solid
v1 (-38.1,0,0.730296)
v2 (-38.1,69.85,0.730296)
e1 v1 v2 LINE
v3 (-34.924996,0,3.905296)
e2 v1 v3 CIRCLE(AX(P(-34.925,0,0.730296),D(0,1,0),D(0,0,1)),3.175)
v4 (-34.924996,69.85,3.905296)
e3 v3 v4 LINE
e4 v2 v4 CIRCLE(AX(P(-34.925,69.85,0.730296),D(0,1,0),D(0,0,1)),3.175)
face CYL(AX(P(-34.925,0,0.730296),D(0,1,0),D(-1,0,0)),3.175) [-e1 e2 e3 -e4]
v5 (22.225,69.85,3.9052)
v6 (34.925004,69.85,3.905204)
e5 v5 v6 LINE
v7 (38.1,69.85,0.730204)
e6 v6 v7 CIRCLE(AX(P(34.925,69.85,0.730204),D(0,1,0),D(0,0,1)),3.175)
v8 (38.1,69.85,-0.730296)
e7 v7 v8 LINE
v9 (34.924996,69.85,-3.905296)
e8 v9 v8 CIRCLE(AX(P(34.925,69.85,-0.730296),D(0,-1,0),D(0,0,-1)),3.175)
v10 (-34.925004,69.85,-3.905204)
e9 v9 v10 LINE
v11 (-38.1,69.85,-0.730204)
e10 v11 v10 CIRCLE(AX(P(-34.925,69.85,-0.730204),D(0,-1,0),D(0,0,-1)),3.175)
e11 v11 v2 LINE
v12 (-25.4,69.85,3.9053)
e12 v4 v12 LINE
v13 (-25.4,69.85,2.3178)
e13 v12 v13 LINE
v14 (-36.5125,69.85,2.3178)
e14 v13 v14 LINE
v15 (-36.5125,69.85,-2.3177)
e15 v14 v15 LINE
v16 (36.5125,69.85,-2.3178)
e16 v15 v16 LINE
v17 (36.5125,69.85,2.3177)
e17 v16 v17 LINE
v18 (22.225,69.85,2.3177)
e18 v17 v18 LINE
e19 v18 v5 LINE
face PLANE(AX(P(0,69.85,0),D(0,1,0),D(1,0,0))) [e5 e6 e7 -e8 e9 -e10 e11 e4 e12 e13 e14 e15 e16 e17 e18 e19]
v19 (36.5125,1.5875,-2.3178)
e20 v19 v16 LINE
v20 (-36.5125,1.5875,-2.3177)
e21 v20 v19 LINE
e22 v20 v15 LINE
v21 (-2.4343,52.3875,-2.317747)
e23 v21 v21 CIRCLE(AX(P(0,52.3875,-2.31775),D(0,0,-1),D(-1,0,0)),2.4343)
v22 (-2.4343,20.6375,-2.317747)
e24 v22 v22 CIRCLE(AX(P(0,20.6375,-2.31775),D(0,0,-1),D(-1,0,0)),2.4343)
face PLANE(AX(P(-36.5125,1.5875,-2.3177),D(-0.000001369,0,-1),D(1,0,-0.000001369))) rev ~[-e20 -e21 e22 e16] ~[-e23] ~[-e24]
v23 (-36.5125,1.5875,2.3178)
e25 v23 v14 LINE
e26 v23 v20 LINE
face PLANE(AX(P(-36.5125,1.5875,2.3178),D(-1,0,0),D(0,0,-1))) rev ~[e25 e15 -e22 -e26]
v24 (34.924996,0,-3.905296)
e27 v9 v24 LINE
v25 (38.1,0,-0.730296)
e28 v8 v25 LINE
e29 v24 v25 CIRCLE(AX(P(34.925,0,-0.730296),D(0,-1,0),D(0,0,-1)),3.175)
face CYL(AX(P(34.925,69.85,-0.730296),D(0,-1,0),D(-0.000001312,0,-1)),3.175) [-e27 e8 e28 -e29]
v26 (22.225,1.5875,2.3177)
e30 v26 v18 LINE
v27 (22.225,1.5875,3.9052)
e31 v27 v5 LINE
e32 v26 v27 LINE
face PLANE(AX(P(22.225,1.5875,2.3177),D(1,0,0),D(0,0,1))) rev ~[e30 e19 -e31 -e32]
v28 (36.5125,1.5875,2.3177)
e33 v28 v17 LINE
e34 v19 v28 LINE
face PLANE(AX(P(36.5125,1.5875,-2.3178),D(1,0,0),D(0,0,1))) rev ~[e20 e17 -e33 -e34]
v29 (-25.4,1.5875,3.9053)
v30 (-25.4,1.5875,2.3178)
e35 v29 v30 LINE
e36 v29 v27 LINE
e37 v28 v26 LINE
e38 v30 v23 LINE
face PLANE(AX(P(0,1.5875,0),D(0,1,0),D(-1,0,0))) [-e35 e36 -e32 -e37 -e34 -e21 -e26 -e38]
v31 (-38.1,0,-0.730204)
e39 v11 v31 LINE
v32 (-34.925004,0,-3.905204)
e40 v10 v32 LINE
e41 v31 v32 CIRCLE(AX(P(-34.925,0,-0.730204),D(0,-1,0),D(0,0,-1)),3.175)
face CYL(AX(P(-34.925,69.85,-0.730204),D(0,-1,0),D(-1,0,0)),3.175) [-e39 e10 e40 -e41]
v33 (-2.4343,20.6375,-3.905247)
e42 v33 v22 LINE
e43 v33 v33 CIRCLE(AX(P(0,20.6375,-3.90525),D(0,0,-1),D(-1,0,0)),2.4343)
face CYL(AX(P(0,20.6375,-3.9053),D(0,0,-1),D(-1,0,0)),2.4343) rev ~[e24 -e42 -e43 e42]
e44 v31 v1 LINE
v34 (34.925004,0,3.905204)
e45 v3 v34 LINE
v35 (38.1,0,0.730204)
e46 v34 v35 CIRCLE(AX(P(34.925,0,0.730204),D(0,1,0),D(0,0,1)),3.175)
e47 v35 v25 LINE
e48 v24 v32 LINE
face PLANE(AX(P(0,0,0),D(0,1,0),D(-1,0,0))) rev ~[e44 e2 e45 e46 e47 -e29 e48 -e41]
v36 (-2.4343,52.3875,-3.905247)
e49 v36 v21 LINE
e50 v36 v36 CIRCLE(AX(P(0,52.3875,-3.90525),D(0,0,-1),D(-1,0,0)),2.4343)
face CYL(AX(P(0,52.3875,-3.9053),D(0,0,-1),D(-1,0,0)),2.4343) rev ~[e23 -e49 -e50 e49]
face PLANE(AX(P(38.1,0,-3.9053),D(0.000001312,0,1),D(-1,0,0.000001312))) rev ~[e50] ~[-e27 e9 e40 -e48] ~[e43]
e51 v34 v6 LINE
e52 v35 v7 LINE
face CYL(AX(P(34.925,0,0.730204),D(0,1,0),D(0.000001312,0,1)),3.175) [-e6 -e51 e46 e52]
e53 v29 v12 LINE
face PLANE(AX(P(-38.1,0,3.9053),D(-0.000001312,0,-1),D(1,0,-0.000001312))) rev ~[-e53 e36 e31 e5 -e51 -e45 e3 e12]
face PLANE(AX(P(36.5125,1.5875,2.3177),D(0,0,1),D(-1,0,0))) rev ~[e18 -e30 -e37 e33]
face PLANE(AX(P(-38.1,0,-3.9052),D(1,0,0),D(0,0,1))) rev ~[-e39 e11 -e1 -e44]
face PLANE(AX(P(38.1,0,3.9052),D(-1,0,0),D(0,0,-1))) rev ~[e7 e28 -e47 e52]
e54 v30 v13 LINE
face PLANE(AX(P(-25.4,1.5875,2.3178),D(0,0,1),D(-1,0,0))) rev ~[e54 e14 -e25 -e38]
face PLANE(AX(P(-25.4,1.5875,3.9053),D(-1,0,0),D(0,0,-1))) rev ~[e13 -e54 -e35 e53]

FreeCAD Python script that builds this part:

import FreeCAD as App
import Part
import Sketcher

V = App.Vector
Q = App.Units.Quantity


def edges_at(feature, points):
    """Names of the edges that pass closest to the given points."""
    edges = feature.Shape.Edges
    near = lambda p: min(range(len(edges)), key=lambda i: edges[i].distToShape(Part.Vertex(*p))[0])
    return sorted({f"Edge{near(p) + 1}" for p in points})


def add_polygon(sketch, points):
    """Adds a closed chain of lines whose ends are joined by coincident constraints."""
    first, n = sketch.GeometryCount, len(points)
    for a, b in zip(points, points[1:] + points[:1]):
        sketch.addGeometry(Part.LineSegment(App.Vector(*a, 0), App.Vector(*b, 0)), False)
    for i in range(n):
        sketch.addConstraint(Sketcher.Constraint("Coincident", first + i, 2, first + (i + 1) % n, 1))

doc = App.newDocument("Part")
body = doc.addObject("PartDesign::Body", "Body")

sketch1 = doc.addObject("Sketcher::SketchObject", "Sketch")
body.addObject(sketch1)
sketch1.AttachmentSupport = (doc.XZ_Plane, [""])
sketch1.MapMode = "FlatFace"
add_polygon(sketch1, [(-38, -4), (-38, 4), (38, 4), (38, -4)])
sketch1.addConstraint([
    Sketcher.Constraint("Vertical", 0),
    Sketcher.Constraint("Horizontal", 1),
    Sketcher.Constraint("Vertical", 2),
    Sketcher.Constraint("Horizontal", 3),
    Sketcher.Constraint("Symmetric", 0, 2, 2, 2, -1, 1),
    Sketcher.Constraint("DistanceX", 1, 1, 1, 2, Q("3 in")),
    Sketcher.Constraint("DistanceY", 0, 1, 0, 2, Q("0.3075 in")),
])
pad1 = doc.addObject("PartDesign::Pad", "Pad")
body.addObject(pad1)
pad1.Profile = sketch1
pad1.Length = Q("0.0625 in")
pad1.Reversed = True

sketch2 = doc.addObject("Sketcher::SketchObject", "Sketch001")
body.addObject(sketch2)
sketch2.AttachmentSupport = (doc.XZ_Plane, [""])
sketch2.MapMode = "FlatFace"
sketch2.AttachmentOffset = App.Placement(V(0, 0, -0.0625 * 25.4), App.Rotation())
add_polygon(sketch2, [(-38.1, -3.9), (-38.1, 3.9), (-25.4, 3.9), (-25.4, 2.3), (-36.5, 2.3), (-36.5, -2.3), (36.5, -2.3), (36.5, 2.3), (22.2, 2.3), (22.2, 3.9), (38.1, 3.9), (38.1, -3.9)])
sketch2.addConstraint([
    Sketcher.Constraint("Vertical", 0),
    Sketcher.Constraint("Horizontal", 1),
    Sketcher.Constraint("Vertical", 2),
    Sketcher.Constraint("Horizontal", 3),
    Sketcher.Constraint("Vertical", 4),
    Sketcher.Constraint("Horizontal", 5),
    Sketcher.Constraint("Vertical", 6),
    Sketcher.Constraint("Horizontal", 7),
    Sketcher.Constraint("Vertical", 8),
    Sketcher.Constraint("Horizontal", 9),
    Sketcher.Constraint("Vertical", 10),
    Sketcher.Constraint("Horizontal", 11),
    Sketcher.Constraint("Symmetric", 3, 2, 5, 2, -1, 1),
    Sketcher.Constraint("Symmetric", 0, 2, 10, 2, -1, 1),
    Sketcher.Constraint("Horizontal", 3, 2, 6, 2),
    Sketcher.Constraint("Horizontal", 1, 2, 8, 2),
    Sketcher.Constraint("DistanceX", 1, 1, 1, 2, Q("0.5 in")),
    Sketcher.Constraint("DistanceX", 11, 2, 11, 1, Q("3 in")),
    Sketcher.Constraint("DistanceY", 2, 2, 2, 1, Q("0.0625 in")),
    Sketcher.Constraint("DistanceX", 0, 2, 3, 2, Q("0.0625 in")),
    Sketcher.Constraint("DistanceX", 7, 2, 7, 1, Q("0.5625 in")),
    Sketcher.Constraint("DistanceY", 0, 1, 0, 2, Q("0.3075 in")),
])
pad2 = doc.addObject("PartDesign::Pad", "Pad001")
body.addObject(pad2)
pad2.Profile = sketch2
pad2.Length = Q("2.6875 in")
pad2.Reversed = True

sketch3 = doc.addObject("Sketcher::SketchObject", "Sketch002")
body.addObject(sketch3)
sketch3.AttachmentSupport = (doc.XY_Plane, [""])
sketch3.MapMode = "FlatFace"
sketch3.AttachmentOffset = App.Placement(V(0, 0, -3.9053), App.Rotation())
sketch3.addGeometry([
    Part.Circle(V(0, 52.4, 0), V(0, 0, 1), 2.4),
    Part.Circle(V(0, 20.6, 0), V(0, 0, 1), 2.4),
], False)
sketch3.addConstraint([
    Sketcher.Constraint("Equal", 0, 1),
    Sketcher.Constraint("PointOnObject", 0, 3, -2),
    Sketcher.Constraint("PointOnObject", 1, 3, -2),
    Sketcher.Constraint("DistanceY", 1, 3, 0, 3, Q("1.25 in")),
    Sketcher.Constraint("Diameter", 0, Q("4.8686 mm")),
    Sketcher.Constraint("DistanceY", -1, 1, 0, 3, Q("2.0625 in")),
])
pocket1 = doc.addObject("PartDesign::Pocket", "Pocket")
body.addObject(pocket1)
pocket1.Profile = sketch3
pocket1.Length = Q("2.6875 in")
pocket1.Reversed = True
doc.recompute()

fillet = doc.addObject("PartDesign::Fillet", "Fillet")
body.addObject(fillet)
fillet.Base = (pocket1, edges_at(pocket1, [(38.1, 34.925, -3.905), (-38.1, 34.925, -3.905)]))
fillet.Radius = Q("0.125 in")
doc.recompute()

fillet2 = doc.addObject("PartDesign::Fillet", "Fillet001")
body.addObject(fillet2)
fillet2.Base = (fillet, edges_at(fillet, [(-38.1, 34.925, 3.905), (38.1, 34.925, 3.905)]))
fillet2.Radius = Q("0.125 in")

doc.recompute()
